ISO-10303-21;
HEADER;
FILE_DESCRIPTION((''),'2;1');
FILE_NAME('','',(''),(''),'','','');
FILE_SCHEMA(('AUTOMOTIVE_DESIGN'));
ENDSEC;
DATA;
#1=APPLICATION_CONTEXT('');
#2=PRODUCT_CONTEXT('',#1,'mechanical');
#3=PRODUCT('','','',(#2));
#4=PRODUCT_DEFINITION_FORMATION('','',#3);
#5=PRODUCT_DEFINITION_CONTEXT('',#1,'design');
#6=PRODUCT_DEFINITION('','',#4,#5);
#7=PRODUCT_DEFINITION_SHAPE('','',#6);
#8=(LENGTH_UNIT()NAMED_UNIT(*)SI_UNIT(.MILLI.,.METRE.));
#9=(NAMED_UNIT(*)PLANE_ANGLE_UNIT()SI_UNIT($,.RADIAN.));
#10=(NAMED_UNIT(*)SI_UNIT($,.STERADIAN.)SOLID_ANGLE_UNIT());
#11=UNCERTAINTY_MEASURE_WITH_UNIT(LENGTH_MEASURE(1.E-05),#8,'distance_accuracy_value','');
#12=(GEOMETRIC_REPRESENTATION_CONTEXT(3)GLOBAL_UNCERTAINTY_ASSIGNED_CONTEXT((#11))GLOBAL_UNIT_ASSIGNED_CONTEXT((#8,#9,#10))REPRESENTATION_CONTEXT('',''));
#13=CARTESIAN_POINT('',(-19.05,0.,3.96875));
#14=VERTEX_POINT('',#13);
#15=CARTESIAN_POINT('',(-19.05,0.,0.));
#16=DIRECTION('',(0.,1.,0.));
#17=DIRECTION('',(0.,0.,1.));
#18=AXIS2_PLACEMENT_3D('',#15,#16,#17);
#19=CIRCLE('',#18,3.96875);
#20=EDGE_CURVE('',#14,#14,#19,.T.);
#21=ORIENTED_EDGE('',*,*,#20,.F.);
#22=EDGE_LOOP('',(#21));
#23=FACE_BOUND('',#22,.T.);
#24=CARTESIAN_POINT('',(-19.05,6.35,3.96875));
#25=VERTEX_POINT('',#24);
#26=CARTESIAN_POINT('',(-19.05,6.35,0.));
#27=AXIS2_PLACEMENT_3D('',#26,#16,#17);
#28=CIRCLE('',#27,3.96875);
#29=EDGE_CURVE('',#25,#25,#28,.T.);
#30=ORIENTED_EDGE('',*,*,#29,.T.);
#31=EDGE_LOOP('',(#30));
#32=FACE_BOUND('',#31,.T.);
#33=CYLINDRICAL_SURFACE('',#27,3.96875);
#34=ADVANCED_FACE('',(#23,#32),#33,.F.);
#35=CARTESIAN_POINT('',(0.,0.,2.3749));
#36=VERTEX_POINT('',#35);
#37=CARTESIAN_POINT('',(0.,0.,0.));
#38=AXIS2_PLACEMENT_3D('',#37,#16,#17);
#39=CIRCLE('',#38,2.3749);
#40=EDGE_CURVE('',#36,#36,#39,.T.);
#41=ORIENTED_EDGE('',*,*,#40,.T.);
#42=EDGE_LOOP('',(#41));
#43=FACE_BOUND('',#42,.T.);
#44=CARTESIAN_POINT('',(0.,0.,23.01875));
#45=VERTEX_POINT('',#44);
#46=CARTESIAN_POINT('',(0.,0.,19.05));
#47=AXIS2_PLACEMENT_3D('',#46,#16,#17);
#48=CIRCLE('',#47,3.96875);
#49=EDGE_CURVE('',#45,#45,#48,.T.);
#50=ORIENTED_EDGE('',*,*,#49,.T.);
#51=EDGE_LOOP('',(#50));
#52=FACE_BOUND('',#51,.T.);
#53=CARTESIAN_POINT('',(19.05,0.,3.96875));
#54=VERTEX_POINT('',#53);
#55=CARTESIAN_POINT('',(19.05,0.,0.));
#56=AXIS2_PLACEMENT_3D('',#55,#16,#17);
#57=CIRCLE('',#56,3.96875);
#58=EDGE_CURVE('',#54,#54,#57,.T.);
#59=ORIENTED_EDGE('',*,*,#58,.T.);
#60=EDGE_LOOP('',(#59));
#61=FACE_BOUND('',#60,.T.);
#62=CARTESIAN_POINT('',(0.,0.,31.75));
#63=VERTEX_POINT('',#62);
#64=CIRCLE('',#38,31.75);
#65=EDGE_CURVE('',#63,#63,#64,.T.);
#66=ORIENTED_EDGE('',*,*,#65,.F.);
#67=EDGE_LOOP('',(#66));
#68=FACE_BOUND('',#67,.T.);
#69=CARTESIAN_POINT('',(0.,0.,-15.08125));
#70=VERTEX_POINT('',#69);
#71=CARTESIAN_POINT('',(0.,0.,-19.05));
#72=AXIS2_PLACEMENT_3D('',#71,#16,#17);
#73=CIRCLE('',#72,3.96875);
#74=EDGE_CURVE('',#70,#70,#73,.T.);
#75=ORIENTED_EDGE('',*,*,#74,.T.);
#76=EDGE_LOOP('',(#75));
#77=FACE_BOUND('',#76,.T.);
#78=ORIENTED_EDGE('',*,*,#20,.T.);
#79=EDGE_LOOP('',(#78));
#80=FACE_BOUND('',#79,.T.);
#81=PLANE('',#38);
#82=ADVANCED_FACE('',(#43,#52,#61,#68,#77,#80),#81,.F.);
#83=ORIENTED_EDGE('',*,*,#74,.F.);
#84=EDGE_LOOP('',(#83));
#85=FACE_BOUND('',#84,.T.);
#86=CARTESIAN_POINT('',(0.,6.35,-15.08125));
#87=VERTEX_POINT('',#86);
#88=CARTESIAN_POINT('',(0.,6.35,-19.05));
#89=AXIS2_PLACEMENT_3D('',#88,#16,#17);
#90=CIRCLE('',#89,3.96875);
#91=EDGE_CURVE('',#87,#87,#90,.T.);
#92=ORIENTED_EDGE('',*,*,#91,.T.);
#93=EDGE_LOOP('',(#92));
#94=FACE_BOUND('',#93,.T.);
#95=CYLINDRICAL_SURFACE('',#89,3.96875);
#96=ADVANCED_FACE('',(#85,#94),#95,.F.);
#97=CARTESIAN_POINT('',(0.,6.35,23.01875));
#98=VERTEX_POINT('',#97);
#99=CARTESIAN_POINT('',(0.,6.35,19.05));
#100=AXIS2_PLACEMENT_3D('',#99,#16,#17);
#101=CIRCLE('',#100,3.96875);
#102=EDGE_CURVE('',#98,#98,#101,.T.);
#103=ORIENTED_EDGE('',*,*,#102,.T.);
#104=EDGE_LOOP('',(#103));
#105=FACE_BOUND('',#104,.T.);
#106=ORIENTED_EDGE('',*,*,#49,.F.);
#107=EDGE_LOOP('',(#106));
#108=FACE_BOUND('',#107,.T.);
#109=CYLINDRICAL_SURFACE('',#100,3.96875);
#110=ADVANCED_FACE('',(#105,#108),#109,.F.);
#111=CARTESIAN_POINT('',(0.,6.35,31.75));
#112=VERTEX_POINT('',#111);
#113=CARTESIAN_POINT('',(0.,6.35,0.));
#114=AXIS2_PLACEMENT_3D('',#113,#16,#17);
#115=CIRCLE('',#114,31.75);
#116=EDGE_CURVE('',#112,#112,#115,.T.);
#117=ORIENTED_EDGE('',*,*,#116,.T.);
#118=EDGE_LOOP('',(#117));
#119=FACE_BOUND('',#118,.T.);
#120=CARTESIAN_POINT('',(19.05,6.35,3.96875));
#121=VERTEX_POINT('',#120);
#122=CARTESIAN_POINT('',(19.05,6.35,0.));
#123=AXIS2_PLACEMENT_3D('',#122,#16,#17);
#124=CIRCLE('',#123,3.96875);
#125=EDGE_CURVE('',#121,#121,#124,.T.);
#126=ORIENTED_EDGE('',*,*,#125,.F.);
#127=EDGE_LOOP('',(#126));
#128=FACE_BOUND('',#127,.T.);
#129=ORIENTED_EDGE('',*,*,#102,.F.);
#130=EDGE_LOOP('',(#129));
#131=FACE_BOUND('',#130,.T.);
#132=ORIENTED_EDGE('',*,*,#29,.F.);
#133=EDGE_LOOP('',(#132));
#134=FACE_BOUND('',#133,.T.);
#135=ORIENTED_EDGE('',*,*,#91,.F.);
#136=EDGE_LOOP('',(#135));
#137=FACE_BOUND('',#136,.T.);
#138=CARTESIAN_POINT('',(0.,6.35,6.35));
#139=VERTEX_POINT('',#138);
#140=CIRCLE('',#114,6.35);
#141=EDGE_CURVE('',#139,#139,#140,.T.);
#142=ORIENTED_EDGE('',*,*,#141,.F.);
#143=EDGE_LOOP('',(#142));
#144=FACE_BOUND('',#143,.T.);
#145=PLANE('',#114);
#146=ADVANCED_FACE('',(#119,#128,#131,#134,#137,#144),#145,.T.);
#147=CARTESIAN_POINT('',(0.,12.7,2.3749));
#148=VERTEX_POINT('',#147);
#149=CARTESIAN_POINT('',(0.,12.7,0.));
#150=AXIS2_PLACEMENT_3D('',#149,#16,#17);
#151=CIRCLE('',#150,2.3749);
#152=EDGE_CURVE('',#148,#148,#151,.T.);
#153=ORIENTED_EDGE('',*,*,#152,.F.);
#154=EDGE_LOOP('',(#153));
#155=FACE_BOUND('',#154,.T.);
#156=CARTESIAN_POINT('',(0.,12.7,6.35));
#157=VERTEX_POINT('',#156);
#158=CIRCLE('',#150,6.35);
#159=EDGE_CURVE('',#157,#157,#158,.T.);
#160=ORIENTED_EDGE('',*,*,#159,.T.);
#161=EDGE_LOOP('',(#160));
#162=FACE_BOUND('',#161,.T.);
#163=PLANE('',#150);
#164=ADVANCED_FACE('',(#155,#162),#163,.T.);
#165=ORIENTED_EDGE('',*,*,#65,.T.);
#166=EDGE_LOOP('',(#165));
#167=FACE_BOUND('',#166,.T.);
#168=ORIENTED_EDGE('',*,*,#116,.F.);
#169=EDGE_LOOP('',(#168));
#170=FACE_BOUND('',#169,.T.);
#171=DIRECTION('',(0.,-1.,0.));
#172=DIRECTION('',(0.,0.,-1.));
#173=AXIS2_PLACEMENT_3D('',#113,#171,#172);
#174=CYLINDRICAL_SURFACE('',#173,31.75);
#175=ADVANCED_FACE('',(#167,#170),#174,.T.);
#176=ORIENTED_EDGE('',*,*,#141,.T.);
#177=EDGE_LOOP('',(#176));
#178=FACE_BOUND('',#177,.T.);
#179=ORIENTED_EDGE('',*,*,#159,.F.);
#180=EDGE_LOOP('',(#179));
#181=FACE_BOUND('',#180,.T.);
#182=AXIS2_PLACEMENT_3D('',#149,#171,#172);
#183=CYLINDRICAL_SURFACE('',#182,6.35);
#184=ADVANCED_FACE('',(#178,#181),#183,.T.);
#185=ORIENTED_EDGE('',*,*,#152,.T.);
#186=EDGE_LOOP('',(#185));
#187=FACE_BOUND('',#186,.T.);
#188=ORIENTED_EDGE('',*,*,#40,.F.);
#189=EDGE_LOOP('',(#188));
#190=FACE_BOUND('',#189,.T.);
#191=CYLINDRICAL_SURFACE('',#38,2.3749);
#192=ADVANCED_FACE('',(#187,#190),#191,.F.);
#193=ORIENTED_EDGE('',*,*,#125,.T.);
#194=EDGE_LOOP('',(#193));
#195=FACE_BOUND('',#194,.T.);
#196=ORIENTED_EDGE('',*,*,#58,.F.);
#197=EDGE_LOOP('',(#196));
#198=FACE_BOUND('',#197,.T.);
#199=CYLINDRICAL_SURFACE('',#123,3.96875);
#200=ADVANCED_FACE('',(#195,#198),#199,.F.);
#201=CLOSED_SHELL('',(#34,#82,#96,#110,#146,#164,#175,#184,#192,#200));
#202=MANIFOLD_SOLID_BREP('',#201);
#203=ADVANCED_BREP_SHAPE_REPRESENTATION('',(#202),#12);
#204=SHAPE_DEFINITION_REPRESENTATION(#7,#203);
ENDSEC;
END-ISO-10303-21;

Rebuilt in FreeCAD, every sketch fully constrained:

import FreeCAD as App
import Part
import Sketcher

V = App.Vector
Q = App.Units.Quantity

doc = App.newDocument("Part")
params = doc.addObject("Spreadsheet::Sheet", "Params")
for row, (alias, value) in enumerate([
    ("sketch1_diameter", "2.5 in"),
    ("pad1_length", "0.25 in"),
    ("sketch2_diameter", "0.5 in"),
    ("pad2_length", "0.25 in"),
    ("sketch3_diameter", "0.187 in"),
    ("sketch4_diameter", "0.3125 in"),
    ("hole_diameter", "0.3125 in"),
    ("hole_depth", "1.06 in"),
], start=1):
    params.set(f"A{row}", alias)
    params.set(f"B{row}", "=" + value)
    params.setAlias(f"B{row}", alias)

body = doc.addObject("PartDesign::Body", "Body")

# Sketch on XZ plane
sketch1 = body.newObject("Sketcher::SketchObject", "Sketch")
sketch1.AttachmentSupport = (doc.getObject("XZ_Plane"), [""])
sketch1.MapMode = "FlatFace"
sketch1.addGeometry(Part.Circle(V(0, 0, 0), V(0, 0, 1), 31.75), False)
sketch1.addConstraint(Sketcher.Constraint("Coincident", 0, 3, -1, 1))
sketch1.addConstraint(Sketcher.Constraint("Diameter", 0, Q("2.5 in")))
sketch1.setExpression("Constraints[1]", "Params.sketch1_diameter")
pad1 = body.newObject("PartDesign::Pad", "Pad")
pad1.Profile = sketch1
pad1.setExpression("Length", "Params.pad1_length")
pad1.Reversed = True

# Sketch on XZ plane
sketch2 = body.newObject("Sketcher::SketchObject", "Sketch001")
sketch2.AttachmentSupport = (doc.getObject("XZ_Plane"), [""])
sketch2.MapMode = "FlatFace"
sketch2.AttachmentOffset = App.Placement(V(0, 0, -0.25 * 25.4), App.Rotation())
sketch2.addGeometry(Part.Circle(V(0, 0, 0), V(0, 0, 1), 6.35), False)
sketch2.addConstraint(Sketcher.Constraint("Coincident", 0, 3, -1, 1))
sketch2.addConstraint(Sketcher.Constraint("Diameter", 0, Q("0.5 in")))
sketch2.setExpression("Constraints[1]", "Params.sketch2_diameter")
pad2 = body.newObject("PartDesign::Pad", "Pad001")
pad2.Profile = sketch2
pad2.setExpression("Length", "Params.pad2_length")
pad2.Reversed = True

# Sketch on XZ plane
sketch3 = body.newObject("Sketcher::SketchObject", "Sketch002")
sketch3.AttachmentSupport = (doc.getObject("XZ_Plane"), [""])
sketch3.MapMode = "FlatFace"
sketch3.AttachmentOffset = App.Placement(V(0, 0, -0.5 * 25.4), App.Rotation())
sketch3.addGeometry(Part.Circle(V(0, 0, 0), V(0, 0, 1), 2.3749), False)
sketch3.addConstraint(Sketcher.Constraint("Coincident", 0, 3, -1, 1))
sketch3.addConstraint(Sketcher.Constraint("Diameter", 0, Q("0.187 in")))
sketch3.setExpression("Constraints[1]", "Params.sketch3_diameter")
pocket1 = body.newObject("PartDesign::Pocket", "Pocket")
pocket1.Profile = sketch3
pocket1.Type = "ThroughAll"
pocket1.Reversed = True

# Sketch on XZ plane
sketch4 = body.newObject("Sketcher::SketchObject", "Sketch003")
sketch4.AttachmentSupport = (doc.getObject("XZ_Plane"), [""])
sketch4.MapMode = "FlatFace"
sketch4.AttachmentOffset = App.Placement(V(0, 0, -0.25 * 25.4), App.Rotation())
sketch4.addGeometry(Part.Circle(V(0, -19.05, 0), V(0, 0, 1), 3.96875), False)
sketch4.addGeometry(Part.Circle(V(19.05, 0, 0), V(0, 0, 1), 3.96875), False)
sketch4.addGeometry(Part.Circle(V(0, 19.05, 0), V(0, 0, 1), 3.96875), False)
sketch4.addGeometry(Part.Circle(V(-19.05, 0, 0), V(0, 0, 1), 3.96875), False)
sketch4.addConstraint(Sketcher.Constraint("Equal", 0, 1))
sketch4.addConstraint(Sketcher.Constraint("Equal", 1, 2))
sketch4.addConstraint(Sketcher.Constraint("Equal", 2, 3))
sketch4.addConstraint(Sketcher.Constraint("Symmetric", 0, 3, 2, 3, -1, 1))
sketch4.addConstraint(Sketcher.Constraint("Symmetric", 1, 3, 3, 3, -1, 1))
sketch4.addConstraint(Sketcher.Constraint("PointOnObject", 0, 3, -2))
sketch4.addConstraint(Sketcher.Constraint("PointOnObject", 1, 3, -1))
sketch4.addConstraint(Sketcher.Constraint("Diameter", 0, Q("0.3125 in")))
sketch4.addConstraint(Sketcher.Constraint("DistanceY", 0, 3, 2, 3, Q("1.5 in")))
sketch4.addConstraint(Sketcher.Constraint("DistanceX", 3, 3, 1, 3, Q("1.5 in")))
sketch4.setExpression("Constraints[7]", "Params.sketch4_diameter")
doc.recompute()
hole = body.newObject("PartDesign::Hole", "Hole")
hole.Profile = sketch4
hole.ThreadType = "None"
hole.setExpression("Diameter", "Params.hole_diameter")
hole.DepthType = "Dimension"
hole.setExpression("Depth", "Params.hole_depth")
hole.DrillPoint = "Angled"
hole.DrillPointAngle = 118
hole.Reversed = True

doc.recompute()
